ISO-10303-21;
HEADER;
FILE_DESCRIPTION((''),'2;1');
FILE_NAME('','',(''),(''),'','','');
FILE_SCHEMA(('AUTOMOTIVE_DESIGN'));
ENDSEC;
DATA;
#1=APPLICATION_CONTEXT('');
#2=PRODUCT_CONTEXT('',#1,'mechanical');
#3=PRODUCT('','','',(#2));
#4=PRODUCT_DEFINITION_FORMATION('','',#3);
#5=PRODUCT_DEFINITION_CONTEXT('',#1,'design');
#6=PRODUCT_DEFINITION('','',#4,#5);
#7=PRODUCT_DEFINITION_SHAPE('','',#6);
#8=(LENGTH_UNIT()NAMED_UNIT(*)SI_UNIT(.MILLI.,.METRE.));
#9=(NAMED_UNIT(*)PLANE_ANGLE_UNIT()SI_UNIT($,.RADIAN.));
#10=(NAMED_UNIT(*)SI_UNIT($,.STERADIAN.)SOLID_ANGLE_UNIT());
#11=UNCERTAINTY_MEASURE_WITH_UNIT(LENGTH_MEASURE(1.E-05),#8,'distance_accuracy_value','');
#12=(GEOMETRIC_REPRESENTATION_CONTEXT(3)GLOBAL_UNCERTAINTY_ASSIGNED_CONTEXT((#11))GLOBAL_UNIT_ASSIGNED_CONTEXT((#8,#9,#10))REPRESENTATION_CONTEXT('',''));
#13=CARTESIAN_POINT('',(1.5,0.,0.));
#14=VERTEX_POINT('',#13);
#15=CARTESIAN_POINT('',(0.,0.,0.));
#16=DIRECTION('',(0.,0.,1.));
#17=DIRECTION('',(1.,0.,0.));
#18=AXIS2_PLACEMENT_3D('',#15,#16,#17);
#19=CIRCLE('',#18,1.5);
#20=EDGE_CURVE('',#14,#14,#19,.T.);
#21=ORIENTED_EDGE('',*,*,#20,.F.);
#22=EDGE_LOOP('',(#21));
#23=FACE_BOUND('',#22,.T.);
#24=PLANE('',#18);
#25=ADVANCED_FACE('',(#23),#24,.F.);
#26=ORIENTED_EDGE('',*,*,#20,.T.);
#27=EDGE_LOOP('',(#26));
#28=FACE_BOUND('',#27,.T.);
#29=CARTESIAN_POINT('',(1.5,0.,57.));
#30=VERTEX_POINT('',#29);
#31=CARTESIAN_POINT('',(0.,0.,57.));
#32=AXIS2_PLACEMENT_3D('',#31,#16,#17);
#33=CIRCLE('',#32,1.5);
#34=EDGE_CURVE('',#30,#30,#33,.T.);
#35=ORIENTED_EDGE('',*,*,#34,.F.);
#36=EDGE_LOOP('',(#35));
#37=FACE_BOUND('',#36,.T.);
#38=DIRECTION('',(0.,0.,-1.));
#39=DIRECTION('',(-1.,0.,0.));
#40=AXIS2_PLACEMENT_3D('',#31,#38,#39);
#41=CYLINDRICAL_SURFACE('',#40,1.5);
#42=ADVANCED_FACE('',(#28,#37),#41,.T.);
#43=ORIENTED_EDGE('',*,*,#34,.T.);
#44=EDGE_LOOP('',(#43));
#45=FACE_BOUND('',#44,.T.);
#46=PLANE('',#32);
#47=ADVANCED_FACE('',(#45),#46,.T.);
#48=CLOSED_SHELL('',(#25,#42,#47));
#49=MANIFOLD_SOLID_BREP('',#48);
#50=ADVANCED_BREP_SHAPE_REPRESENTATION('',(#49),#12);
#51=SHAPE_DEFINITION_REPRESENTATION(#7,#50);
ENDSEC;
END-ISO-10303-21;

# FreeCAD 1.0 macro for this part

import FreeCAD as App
import Part
import Sketcher

V = App.Vector
Q = App.Units.Quantity

doc = App.newDocument("Part")
params = doc.addObject("Spreadsheet::Sheet", "Params")
for row, (alias, value) in enumerate([
    ("sketch1_diameter", "3 mm"),
    ("pad1_length", "57 mm"),
], start=1):
    params.set(f"A{row}", alias)
    params.set(f"B{row}", "=" + value)
    params.setAlias(f"B{row}", alias)

body = doc.addObject("PartDesign::Body", "Body")

# Sketch on XY plane
sketch1 = body.newObject("Sketcher::SketchObject", "Sketch")
sketch1.AttachmentSupport = (doc.getObject("XY_Plane"), [""])
sketch1.MapMode = "FlatFace"
sketch1.addGeometry(Part.Circle(V(0, 0, 0), V(0, 0, 1), 1.5), False)
sketch1.addConstraint([
    Sketcher.Constraint("Coincident", 0, 3, -1, 1),
    Sketcher.Constraint("Diameter", 0, Q("3 mm")),
])
sketch1.setExpression("Constraints[1]", "Params.sketch1_diameter")
pad1 = body.newObject("PartDesign::Pad", "Pad")
pad1.Profile = sketch1
pad1.setExpression("Length", "Params.pad1_length")

doc.recompute()
